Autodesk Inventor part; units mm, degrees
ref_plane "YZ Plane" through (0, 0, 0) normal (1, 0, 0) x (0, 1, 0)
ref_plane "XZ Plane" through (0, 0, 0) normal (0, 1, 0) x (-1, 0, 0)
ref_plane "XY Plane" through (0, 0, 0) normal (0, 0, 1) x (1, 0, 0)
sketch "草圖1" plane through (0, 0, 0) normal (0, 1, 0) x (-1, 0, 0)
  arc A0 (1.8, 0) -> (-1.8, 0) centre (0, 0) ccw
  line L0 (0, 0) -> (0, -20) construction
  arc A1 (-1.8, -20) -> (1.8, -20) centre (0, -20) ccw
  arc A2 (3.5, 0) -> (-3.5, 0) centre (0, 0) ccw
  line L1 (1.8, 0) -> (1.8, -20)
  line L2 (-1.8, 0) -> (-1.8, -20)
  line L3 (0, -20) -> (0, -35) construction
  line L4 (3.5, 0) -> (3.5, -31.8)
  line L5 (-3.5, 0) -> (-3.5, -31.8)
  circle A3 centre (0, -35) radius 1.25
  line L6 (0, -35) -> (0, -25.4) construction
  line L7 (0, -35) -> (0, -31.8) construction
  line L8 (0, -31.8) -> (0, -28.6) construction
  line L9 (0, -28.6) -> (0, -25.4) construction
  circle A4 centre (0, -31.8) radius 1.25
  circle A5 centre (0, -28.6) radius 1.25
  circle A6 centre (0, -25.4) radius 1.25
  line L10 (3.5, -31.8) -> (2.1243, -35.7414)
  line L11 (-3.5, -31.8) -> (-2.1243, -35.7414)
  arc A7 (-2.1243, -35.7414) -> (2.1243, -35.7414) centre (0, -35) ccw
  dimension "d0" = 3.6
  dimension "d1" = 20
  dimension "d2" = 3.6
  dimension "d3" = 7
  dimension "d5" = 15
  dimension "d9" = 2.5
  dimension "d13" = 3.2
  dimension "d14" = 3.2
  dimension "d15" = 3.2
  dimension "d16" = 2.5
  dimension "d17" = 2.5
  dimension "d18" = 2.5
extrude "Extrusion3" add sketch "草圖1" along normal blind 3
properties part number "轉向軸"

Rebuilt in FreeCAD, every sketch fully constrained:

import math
import FreeCAD as App
import Part
import Sketcher

V = App.Vector
Q = App.Units.Quantity

doc = App.newDocument("Part")
body = doc.addObject("PartDesign::Body", "Body")

# Sketch on XZ plane
sketch1 = body.newObject("Sketcher::SketchObject", "Sketch")
sketch1.AttachmentSupport = (doc.getObject("XZ_Plane"), [""])
sketch1.MapMode = "FlatFace"
sketch1.addGeometry([
    Part.LineSegment(V(-3.5, -31.8, 0), V(-3.5, 0, 0)),  # 0
    Part.ArcOfCircle(Part.Circle(V(0, 0, 0), V(0, 0, 1), 3.5), math.radians(0), math.radians(180)),  # 1
    Part.LineSegment(V(3.5, 0, 0), V(3.5, -31.8, 0)),  # 2
    Part.LineSegment(V(3.5, -31.8, 0), V(2.1, -35.7, 0)),  # 3
    Part.ArcOfCircle(Part.Circle(V(0, -35, 0), V(0, 0, 1), 2.2), math.radians(-161), math.radians(-19)),  # 4
    Part.LineSegment(V(-2.1, -35.7, 0), V(-3.5, -31.8, 0)),  # 5
    Part.Circle(V(0, -35, 0), V(0, 0, 1), 1.2),  # 6
    Part.Circle(V(0, -31.8, 0), V(0, 0, 1), 1.2),  # 7
    Part.Circle(V(0, -28.6, 0), V(0, 0, 1), 1.2),  # 8
    Part.Circle(V(0, -25.4, 0), V(0, 0, 1), 1.2),  # 9
    Part.ArcOfCircle(Part.Circle(V(0, 0, 0), V(0, 0, 1), 1.8), math.radians(0), math.radians(180)),  # 10
    Part.LineSegment(V(-1.8, 0, 0), V(-1.8, -20, 0)),  # 11
    Part.ArcOfCircle(Part.Circle(V(0, -20, 0), V(0, 0, 1), 1.8), math.radians(180), math.radians(360)),  # 12
    Part.LineSegment(V(1.8, -20, 0), V(1.8, 0, 0)),  # 13
], False)
sketch1.addConstraint([
    Sketcher.Constraint("Tangent", 0, 2, 1, 2),
    Sketcher.Constraint("Tangent", 1, 1, 2, 1),
    Sketcher.Constraint("Coincident", 2, 2, 3, 1),
    Sketcher.Constraint("Tangent", 3, 2, 4, 2),
    Sketcher.Constraint("Tangent", 4, 1, 5, 1),
    Sketcher.Constraint("Coincident", 5, 2, 0, 1),
    Sketcher.Constraint("Tangent", 10, 2, 11, 1),
    Sketcher.Constraint("Tangent", 11, 2, 12, 1),
    Sketcher.Constraint("Tangent", 12, 2, 13, 1),
    Sketcher.Constraint("Tangent", 13, 2, 10, 1),
    Sketcher.Constraint("Vertical", 0),
    Sketcher.Constraint("Vertical", 2),
    Sketcher.Constraint("Vertical", 11),
    Sketcher.Constraint("Vertical", 13),
    Sketcher.Constraint("Coincident", 1, 3, -1, 1),
    Sketcher.Constraint("Coincident", 10, 3, -1, 1),
    Sketcher.Constraint("Coincident", 6, 3, 4, 3),
    Sketcher.Constraint("Equal", 6, 7),
    Sketcher.Constraint("Equal", 7, 8),
    Sketcher.Constraint("Equal", 8, 9),
    Sketcher.Constraint("Symmetric", 3, 2, 4, 1, -2),
    Sketcher.Constraint("PointOnObject", 7, 3, -2),
    Sketcher.Constraint("PointOnObject", 8, 3, -2),
    Sketcher.Constraint("PointOnObject", 9, 3, -2),
    Sketcher.Constraint("Horizontal", 7, 3, 2, 2),
    Sketcher.Constraint("Diameter", 6, Q("2.5 mm")),
    Sketcher.Constraint("Radius", 1, Q("3.5 mm")),
    Sketcher.Constraint("Radius", 10, Q("1.8 mm")),
    Sketcher.Constraint("DistanceY", 11, 2, 11, 1, Q("20 mm")),
    Sketcher.Constraint("DistanceY", 4, 3, 12, 3, Q("15 mm")),
    Sketcher.Constraint("DistanceY", 4, 3, 7, 3, Q("3.2 mm")),
    Sketcher.Constraint("DistanceY", 7, 3, 8, 3, Q("3.2 mm")),
    Sketcher.Constraint("DistanceY", 8, 3, 9, 3, Q("3.2 mm")),
    Sketcher.Constraint("Radius", 4, Q("2.25 mm")),
])
pad1 = body.newObject("PartDesign::Pad", "Pad")
pad1.Profile = sketch1
pad1.Length = 3
pad1.Reversed = True

doc.recompute()
